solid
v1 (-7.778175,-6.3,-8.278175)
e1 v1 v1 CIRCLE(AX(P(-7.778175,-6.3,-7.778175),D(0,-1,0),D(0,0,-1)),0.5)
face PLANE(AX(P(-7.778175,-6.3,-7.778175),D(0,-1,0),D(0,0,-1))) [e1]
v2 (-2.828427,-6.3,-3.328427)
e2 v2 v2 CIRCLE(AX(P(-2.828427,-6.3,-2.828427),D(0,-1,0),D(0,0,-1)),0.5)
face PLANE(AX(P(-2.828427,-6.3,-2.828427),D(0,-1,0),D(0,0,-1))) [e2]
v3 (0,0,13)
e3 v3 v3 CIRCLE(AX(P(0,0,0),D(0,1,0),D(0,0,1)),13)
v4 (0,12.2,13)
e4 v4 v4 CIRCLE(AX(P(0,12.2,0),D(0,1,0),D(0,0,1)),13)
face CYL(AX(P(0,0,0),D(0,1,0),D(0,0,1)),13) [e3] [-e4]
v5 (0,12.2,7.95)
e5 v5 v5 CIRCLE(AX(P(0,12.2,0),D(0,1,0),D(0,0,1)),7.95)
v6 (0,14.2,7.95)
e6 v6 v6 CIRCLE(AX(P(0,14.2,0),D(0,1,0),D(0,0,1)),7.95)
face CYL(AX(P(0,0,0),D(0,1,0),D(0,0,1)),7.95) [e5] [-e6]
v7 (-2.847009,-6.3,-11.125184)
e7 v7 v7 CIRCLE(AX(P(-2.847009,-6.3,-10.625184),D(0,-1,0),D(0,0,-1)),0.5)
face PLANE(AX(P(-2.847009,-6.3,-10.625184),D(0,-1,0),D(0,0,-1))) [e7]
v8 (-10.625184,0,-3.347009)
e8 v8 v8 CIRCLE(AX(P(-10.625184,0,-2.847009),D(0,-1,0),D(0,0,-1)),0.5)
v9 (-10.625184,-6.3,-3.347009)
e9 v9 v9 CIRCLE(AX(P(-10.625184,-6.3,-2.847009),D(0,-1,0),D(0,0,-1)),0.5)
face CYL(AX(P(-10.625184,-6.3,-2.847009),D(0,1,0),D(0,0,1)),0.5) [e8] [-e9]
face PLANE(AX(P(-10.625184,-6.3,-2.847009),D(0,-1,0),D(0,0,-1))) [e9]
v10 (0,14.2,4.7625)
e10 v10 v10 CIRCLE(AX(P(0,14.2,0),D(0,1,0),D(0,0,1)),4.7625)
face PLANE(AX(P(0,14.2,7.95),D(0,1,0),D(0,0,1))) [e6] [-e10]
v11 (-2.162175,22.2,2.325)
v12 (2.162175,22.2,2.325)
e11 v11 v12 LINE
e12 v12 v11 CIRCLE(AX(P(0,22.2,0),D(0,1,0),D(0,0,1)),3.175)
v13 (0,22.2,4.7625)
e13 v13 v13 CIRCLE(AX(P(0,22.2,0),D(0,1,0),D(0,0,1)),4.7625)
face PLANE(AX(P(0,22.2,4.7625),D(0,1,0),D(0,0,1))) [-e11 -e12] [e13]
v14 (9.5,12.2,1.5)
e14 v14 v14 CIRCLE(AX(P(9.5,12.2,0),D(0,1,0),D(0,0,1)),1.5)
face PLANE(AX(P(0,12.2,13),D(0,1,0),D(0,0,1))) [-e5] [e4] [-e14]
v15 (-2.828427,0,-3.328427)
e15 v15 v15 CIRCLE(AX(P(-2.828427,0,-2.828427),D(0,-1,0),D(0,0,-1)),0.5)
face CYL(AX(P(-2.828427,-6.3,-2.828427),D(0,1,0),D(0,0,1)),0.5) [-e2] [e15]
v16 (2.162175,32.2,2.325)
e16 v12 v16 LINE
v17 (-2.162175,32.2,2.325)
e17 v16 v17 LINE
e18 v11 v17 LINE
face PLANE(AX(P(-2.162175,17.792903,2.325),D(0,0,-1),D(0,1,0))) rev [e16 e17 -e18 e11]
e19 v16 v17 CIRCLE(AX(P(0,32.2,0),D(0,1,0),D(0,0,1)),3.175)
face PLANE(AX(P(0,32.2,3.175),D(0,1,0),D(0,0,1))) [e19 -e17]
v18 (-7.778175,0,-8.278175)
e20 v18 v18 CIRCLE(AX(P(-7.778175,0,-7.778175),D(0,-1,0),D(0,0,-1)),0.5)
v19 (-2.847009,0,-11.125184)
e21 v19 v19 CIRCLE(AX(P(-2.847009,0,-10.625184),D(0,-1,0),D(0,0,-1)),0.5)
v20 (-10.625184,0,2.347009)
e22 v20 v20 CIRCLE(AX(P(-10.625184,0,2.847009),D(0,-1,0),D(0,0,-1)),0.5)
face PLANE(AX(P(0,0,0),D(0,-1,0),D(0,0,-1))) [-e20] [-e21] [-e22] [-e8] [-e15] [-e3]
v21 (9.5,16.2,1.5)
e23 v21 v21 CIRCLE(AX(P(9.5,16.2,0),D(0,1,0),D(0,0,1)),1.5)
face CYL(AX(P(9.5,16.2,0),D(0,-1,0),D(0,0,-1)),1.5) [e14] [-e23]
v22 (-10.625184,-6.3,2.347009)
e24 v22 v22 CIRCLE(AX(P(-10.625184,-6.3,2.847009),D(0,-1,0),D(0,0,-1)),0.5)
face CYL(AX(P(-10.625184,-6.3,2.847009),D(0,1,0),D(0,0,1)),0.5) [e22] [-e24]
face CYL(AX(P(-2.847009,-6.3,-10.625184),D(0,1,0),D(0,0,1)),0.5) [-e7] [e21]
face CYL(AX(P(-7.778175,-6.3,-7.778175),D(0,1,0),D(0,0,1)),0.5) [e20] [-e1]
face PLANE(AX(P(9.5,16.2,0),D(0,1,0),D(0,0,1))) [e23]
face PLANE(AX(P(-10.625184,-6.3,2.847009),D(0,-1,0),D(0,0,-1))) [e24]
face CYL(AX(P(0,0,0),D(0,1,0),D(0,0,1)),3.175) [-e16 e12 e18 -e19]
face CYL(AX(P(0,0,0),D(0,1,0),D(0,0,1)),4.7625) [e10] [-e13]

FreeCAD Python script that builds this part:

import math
import FreeCAD as App
import Part
import Sketcher
from FreeCAD import Vector


def add_polygon(sketch, points):
    """Adds a closed chain of lines whose ends are joined by coincident constraints."""
    first, n = sketch.GeometryCount, len(points)
    for a, b in zip(points, points[1:] + points[:1]):
        sketch.addGeometry(Part.LineSegment(App.Vector(*a, 0), App.Vector(*b, 0)), False)
    for i in range(n):
        sketch.addConstraint(Sketcher.Constraint("Coincident", first + i, 2, first + (i + 1) % n, 1))

doc = App.newDocument("Part")
body = doc.addObject("PartDesign::Body", "Body")

# Sketch on YZ plane
sketch1 = doc.addObject("Sketcher::SketchObject", "Sketch")
body.addObject(sketch1)
sketch1.AttachmentSupport = (doc.YZ_Plane, [""])
sketch1.MapMode = "FlatFace"
add_polygon(sketch1, [(0, 13), (0, 0), (32.2, 0), (32.2, 3.2), (22.2, 3.2), (22.2, 4.8), (14.2, 4.8), (14.2, 8), (12.2, 8), (12.2, 13)])  # lines 0-9
sketch1.addConstraint(Sketcher.Constraint("Vertical", 0))
sketch1.addConstraint(Sketcher.Constraint("Horizontal", 1))
sketch1.addConstraint(Sketcher.Constraint("Vertical", 2))
sketch1.addConstraint(Sketcher.Constraint("Horizontal", 3))
sketch1.addConstraint(Sketcher.Constraint("Vertical", 4))
sketch1.addConstraint(Sketcher.Constraint("Horizontal", 5))
sketch1.addConstraint(Sketcher.Constraint("Vertical", 6))
sketch1.addConstraint(Sketcher.Constraint("Horizontal", 7))
sketch1.addConstraint(Sketcher.Constraint("Vertical", 8))
sketch1.addConstraint(Sketcher.Constraint("Horizontal", 9))
sketch1.addConstraint(Sketcher.Constraint("Coincident", 0, 2, -1, 1))
sketch1.addConstraint(Sketcher.Constraint("DistanceX", 3, 2, 3, 1, 10.0))
sketch1.addConstraint(Sketcher.Constraint("DistanceX", 5, 2, 5, 1, 8.0))
sketch1.addConstraint(Sketcher.Constraint("DistanceX", 7, 2, 7, 1, 2.0))
sketch1.addConstraint(Sketcher.Constraint("DistanceY", 0, 2, 0, 1, 13.0))
sketch1.addConstraint(Sketcher.Constraint("DistanceX", 1, 1, 1, 2, 32.2))
sketch1.addConstraint(Sketcher.Constraint("DistanceY", 8, 1, 8, 2, 5.05))
sketch1.addConstraint(Sketcher.Constraint("DistanceY", 2, 1, 2, 2, 3.175))
sketch1.addConstraint(Sketcher.Constraint("DistanceY", 4, 1, 4, 2, 1.5875))
revolution = doc.addObject("PartDesign::Revolution", "Revolution")
body.addObject(revolution)
revolution.Profile = sketch1
revolution.ReferenceAxis = (sketch1, ["H_Axis"])
revolution.Angle = 360

# Sketch on XZ plane
sketch2 = doc.addObject("Sketcher::SketchObject", "Sketch001")
body.addObject(sketch2)
sketch2.AttachmentSupport = (doc.XZ_Plane, [""])
sketch2.MapMode = "FlatFace"
sketch2.AttachmentOffset = App.Placement(Vector(0, 0, -32.2), App.Rotation())
sketch2.addGeometry(Part.LineSegment(Vector(2.2, 2.3, 0), Vector(-2.2, 2.3, 0)), False)
sketch2.addGeometry(Part.ArcOfCircle(Part.Circle(Vector(0, 0, 0), Vector(0, 0, 1), 3.2), math.radians(47), math.radians(133)), False)
sketch2.addConstraint(Sketcher.Constraint("Coincident", 0, 1, 1, 1))
sketch2.addConstraint(Sketcher.Constraint("Coincident", 1, 2, 0, 2))
sketch2.addConstraint(Sketcher.Constraint("Horizontal", 0))
sketch2.addConstraint(Sketcher.Constraint("Coincident", 1, 3, -1, 1))
sketch2.addConstraint(Sketcher.Constraint("Radius", 1, 3.175))
sketch2.addConstraint(Sketcher.Constraint("DistanceY", -1, 1, 0, 1, 2.325))
pocket1 = doc.addObject("PartDesign::Pocket", "Pocket")
body.addObject(pocket1)
pocket1.Profile = sketch2
pocket1.Length = 10
pocket1.Reversed = True

# Sketch on XZ plane
sketch3 = doc.addObject("Sketcher::SketchObject", "Sketch002")
body.addObject(sketch3)
sketch3.AttachmentSupport = (doc.XZ_Plane, [""])
sketch3.MapMode = "FlatFace"
sketch3.AttachmentOffset = App.Placement(Vector(0, 0, -12.2), App.Rotation())
sketch3.addGeometry(Part.Circle(Vector(9.5, 0, 0), Vector(0, 0, 1), 1.5), False)
sketch3.addConstraint(Sketcher.Constraint("PointOnObject", 0, 3, -1))
sketch3.addConstraint(Sketcher.Constraint("Diameter", 0, 3.0))
sketch3.addConstraint(Sketcher.Constraint("DistanceX", -1, 1, 0, 3, 9.5))
pad1 = doc.addObject("PartDesign::Pad", "Pad")
body.addObject(pad1)
pad1.Profile = sketch3
pad1.Length = 4
pad1.Reversed = True

# Sketch on XZ plane
sketch4 = doc.addObject("Sketcher::SketchObject", "Sketch003")
body.addObject(sketch4)
sketch4.AttachmentSupport = (doc.XZ_Plane, [""])
sketch4.MapMode = "FlatFace"
sketch4.addGeometry(Part.Circle(Vector(-2.8, -10.6, 0), Vector(0, 0, 1), 0.5), False)
sketch4.addGeometry(Part.Circle(Vector(-7.8, -7.8, 0), Vector(0, 0, 1), 0.5), False)
sketch4.addGeometry(Part.Circle(Vector(-2.8, -2.8, 0), Vector(0, 0, 1), 0.5), False)
sketch4.addGeometry(Part.Circle(Vector(-10.6, -2.8, 0), Vector(0, 0, 1), 0.5), False)
sketch4.addGeometry(Part.Circle(Vector(-10.6, 2.8, 0), Vector(0, 0, 1), 0.5), False)
sketch4.addConstraint(Sketcher.Constraint("Equal", 0, 1))
sketch4.addConstraint(Sketcher.Constraint("Equal", 1, 2))
sketch4.addConstraint(Sketcher.Constraint("Equal", 2, 3))
sketch4.addConstraint(Sketcher.Constraint("Equal", 3, 4))
sketch4.addConstraint(Sketcher.Constraint("Symmetric", 3, 3, 4, 3, -1))
sketch4.addConstraint(Sketcher.Constraint("Diameter", 0, 1.0))
sketch4.addConstraint(Sketcher.Constraint("DistanceX", 0, 3, -1, 1, 2.847009))
sketch4.addConstraint(Sketcher.Constraint("DistanceY", 3, 3, -1, 1, 2.847009))
sketch4.addConstraint(Sketcher.Constraint("DistanceY", 0, 3, 1, 3, 2.847009))
sketch4.addConstraint(Sketcher.Constraint("DistanceX", 3, 3, 1, 3, 2.847009))
sketch4.addConstraint(Sketcher.Constraint("DistanceY", 0, 3, -1, 1, 10.625184))
sketch4.addConstraint(Sketcher.Constraint("DistanceX", 1, 3, -1, 1, 7.778175))
sketch4.addConstraint(Sketcher.Constraint("DistanceX", 2, 3, -1, 1, 2.828427))
sketch4.addConstraint(Sketcher.Constraint("DistanceY", 2, 3, -1, 1, 2.828427))
pad2 = doc.addObject("PartDesign::Pad", "Pad001")
body.addObject(pad2)
pad2.Profile = sketch4
pad2.Length = 6.3

doc.recompute()
